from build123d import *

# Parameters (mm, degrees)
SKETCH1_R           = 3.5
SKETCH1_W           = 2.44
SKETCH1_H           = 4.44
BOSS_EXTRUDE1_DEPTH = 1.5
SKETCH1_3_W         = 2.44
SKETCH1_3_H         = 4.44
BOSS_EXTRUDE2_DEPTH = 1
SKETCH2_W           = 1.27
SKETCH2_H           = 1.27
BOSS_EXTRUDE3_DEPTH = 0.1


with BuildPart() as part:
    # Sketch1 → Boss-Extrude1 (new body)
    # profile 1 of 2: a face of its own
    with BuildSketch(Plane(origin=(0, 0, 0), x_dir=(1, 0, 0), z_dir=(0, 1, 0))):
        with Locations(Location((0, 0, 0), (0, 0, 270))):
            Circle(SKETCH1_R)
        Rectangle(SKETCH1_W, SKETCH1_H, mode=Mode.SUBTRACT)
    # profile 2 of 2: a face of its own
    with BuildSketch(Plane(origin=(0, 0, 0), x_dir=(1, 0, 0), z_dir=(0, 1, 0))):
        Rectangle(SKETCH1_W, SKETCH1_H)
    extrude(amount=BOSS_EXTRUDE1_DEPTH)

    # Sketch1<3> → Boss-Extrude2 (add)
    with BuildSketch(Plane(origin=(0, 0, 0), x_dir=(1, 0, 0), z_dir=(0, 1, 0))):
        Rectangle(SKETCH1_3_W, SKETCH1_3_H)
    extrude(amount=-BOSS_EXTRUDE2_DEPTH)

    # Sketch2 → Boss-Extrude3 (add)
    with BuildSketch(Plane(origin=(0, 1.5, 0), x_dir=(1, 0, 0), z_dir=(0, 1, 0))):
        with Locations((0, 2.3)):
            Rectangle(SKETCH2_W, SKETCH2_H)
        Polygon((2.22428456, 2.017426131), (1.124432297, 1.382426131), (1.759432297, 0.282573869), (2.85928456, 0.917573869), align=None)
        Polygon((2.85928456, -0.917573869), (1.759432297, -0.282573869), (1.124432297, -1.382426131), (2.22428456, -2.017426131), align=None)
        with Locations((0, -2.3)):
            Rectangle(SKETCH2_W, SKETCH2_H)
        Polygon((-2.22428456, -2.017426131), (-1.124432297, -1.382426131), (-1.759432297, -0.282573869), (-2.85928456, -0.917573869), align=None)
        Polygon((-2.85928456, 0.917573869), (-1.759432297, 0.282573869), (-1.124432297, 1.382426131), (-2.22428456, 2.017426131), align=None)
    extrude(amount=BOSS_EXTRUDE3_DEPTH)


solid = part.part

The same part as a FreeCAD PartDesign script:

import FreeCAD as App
import Part
import Sketcher

V = App.Vector
Q = App.Units.Quantity


def add_polygon(sketch, points):
    """Adds a closed chain of lines whose ends are joined by coincident constraints."""
    first, n = sketch.GeometryCount, len(points)
    for a, b in zip(points, points[1:] + points[:1]):
        sketch.addGeometry(Part.LineSegment(App.Vector(*a, 0), App.Vector(*b, 0)), False)
    for i in range(n):
        sketch.addConstraint(Sketcher.Constraint("Coincident", first + i, 2, first + (i + 1) % n, 1))

doc = App.newDocument("Part")
body = doc.addObject("PartDesign::Body", "Body")

sketch1 = doc.addObject("Sketcher::SketchObject", "Sketch")
body.addObject(sketch1)
sketch1.AttachmentSupport = (doc.XZ_Plane, [""])
sketch1.MapMode = "FlatFace"
sketch1.addGeometry(Part.Circle(V(0, 0, 0), V(0, 0, 1), 3.5), False)
sketch1.addConstraint([
    Sketcher.Constraint("Coincident", 0, 3, -1, 1),
    Sketcher.Constraint("Diameter", 0, 7.0),
])
pad1 = doc.addObject("PartDesign::Pad", "Pad")
body.addObject(pad1)
pad1.Profile = sketch1
pad1.Length = 1.5
pad1.Reversed = True

sketch2 = doc.addObject("Sketcher::SketchObject", "Sketch001")
body.addObject(sketch2)
sketch2.AttachmentSupport = (doc.XZ_Plane, [""])
sketch2.MapMode = "FlatFace"
add_polygon(sketch2, [(-1.2, -2.2), (-1.2, 2.2), (1.2, 2.2), (1.2, -2.2)])
sketch2.addConstraint([
    Sketcher.Constraint("Vertical", 0),
    Sketcher.Constraint("Horizontal", 1),
    Sketcher.Constraint("Vertical", 2),
    Sketcher.Constraint("Horizontal", 3),
    Sketcher.Constraint("Symmetric", 0, 2, 2, 2, -1, 1),
    Sketcher.Constraint("DistanceX", 1, 1, 1, 2, 2.44),
    Sketcher.Constraint("DistanceY", 0, 1, 0, 2, 4.44),
])
pad2 = doc.addObject("PartDesign::Pad", "Pad001")
body.addObject(pad2)
pad2.Profile = sketch2
pad2.Length = 1

sketch3 = doc.addObject("Sketcher::SketchObject", "Sketch002")
body.addObject(sketch3)
sketch3.AttachmentSupport = (doc.XZ_Plane, [""])
sketch3.MapMode = "FlatFace"
sketch3.AttachmentOffset = App.Placement(V(0, 0, -1.5), App.Rotation())
add_polygon(sketch3, [(-0.6, -2.9), (-0.6, -1.7), (0.6, -1.7), (0.6, -2.9)])
add_polygon(sketch3, [(2.2, -2), (1.1, -1.4), (1.8, -0.3), (2.9, -0.9)])
add_polygon(sketch3, [(2.9, 0.9), (1.8, 0.3), (1.1, 1.4), (2.2, 2)])
add_polygon(sketch3, [(-0.6, 1.7), (-0.6, 2.9), (0.6, 2.9), (0.6, 1.7)])
add_polygon(sketch3, [(-2.2, 2), (-1.1, 1.4), (-1.8, 0.3), (-2.9, 0.9)])
add_polygon(sketch3, [(-2.9, -0.9), (-1.8, -0.3), (-1.1, -1.4), (-2.2, -2)])
sketch3.addConstraint([
    Sketcher.Constraint("Vertical", 0),
    Sketcher.Constraint("Horizontal", 1),
    Sketcher.Constraint("Vertical", 2),
    Sketcher.Constraint("Horizontal", 3),
    Sketcher.Constraint("Vertical", 12),
    Sketcher.Constraint("Horizontal", 13),
    Sketcher.Constraint("Vertical", 14),
    Sketcher.Constraint("Horizontal", 15),
    Sketcher.Constraint("Symmetric", 2, 2, 12, 2, -1, 1),
    Sketcher.Constraint("Symmetric", 0, 2, 14, 2, -1, 1),
    Sketcher.Constraint("Symmetric", 4, 2, 16, 2, -1, 1),
    Sketcher.Constraint("Symmetric", 5, 2, 17, 2, -1, 1),
    Sketcher.Constraint("Symmetric", 6, 2, 18, 2, -1, 1),
    Sketcher.Constraint("Symmetric", 7, 2, 19, 2, -1, 1),
    Sketcher.Constraint("Symmetric", 8, 2, 20, 2, -1, 1),
    Sketcher.Constraint("Symmetric", 9, 2, 21, 2, -1, 1),
    Sketcher.Constraint("Symmetric", 10, 2, 22, 2, -1, 1),
    Sketcher.Constraint("Symmetric", 11, 2, 23, 2, -1, 1),
    Sketcher.Constraint("Symmetric", 9, 2, 16, 2, -2),
    Sketcher.Constraint("Symmetric", 8, 2, 17, 2, -2),
    Sketcher.Constraint("Symmetric", 11, 2, 18, 2, -2),
    Sketcher.Constraint("Symmetric", 10, 2, 19, 2, -2),
    Sketcher.Constraint("Perpendicular", 4, 5),
    Sketcher.Constraint("Perpendicular", 5, 6),
    Sketcher.Constraint("Perpendicular", 6, 7),
    Sketcher.Constraint("Vertical", 3, 2, 12, 2),
    Sketcher.Constraint("Equal", 15, 0),
    Sketcher.Constraint("Equal", 4, 5),
    Sketcher.Constraint("Angle", 4, Q("150 deg")),
    Sketcher.Constraint("DistanceX", 1, 1, 1, 2, 1.27),
    Sketcher.Constraint("DistanceY", 7, 2, 8, 2, 2.3),
    Sketcher.Constraint("Distance", 4, 1.27),
    Sketcher.Constraint("DistanceY", 0, 2, -1, 1, 1.665),
    Sketcher.Constraint("DistanceX", -1, 1, 4, 2, 1.124432),
])
pad3 = doc.addObject("PartDesign::Pad", "Pad002")
body.addObject(pad3)
pad3.Profile = sketch3
pad3.Length = 0.1
pad3.Reversed = True

doc.recompute()
